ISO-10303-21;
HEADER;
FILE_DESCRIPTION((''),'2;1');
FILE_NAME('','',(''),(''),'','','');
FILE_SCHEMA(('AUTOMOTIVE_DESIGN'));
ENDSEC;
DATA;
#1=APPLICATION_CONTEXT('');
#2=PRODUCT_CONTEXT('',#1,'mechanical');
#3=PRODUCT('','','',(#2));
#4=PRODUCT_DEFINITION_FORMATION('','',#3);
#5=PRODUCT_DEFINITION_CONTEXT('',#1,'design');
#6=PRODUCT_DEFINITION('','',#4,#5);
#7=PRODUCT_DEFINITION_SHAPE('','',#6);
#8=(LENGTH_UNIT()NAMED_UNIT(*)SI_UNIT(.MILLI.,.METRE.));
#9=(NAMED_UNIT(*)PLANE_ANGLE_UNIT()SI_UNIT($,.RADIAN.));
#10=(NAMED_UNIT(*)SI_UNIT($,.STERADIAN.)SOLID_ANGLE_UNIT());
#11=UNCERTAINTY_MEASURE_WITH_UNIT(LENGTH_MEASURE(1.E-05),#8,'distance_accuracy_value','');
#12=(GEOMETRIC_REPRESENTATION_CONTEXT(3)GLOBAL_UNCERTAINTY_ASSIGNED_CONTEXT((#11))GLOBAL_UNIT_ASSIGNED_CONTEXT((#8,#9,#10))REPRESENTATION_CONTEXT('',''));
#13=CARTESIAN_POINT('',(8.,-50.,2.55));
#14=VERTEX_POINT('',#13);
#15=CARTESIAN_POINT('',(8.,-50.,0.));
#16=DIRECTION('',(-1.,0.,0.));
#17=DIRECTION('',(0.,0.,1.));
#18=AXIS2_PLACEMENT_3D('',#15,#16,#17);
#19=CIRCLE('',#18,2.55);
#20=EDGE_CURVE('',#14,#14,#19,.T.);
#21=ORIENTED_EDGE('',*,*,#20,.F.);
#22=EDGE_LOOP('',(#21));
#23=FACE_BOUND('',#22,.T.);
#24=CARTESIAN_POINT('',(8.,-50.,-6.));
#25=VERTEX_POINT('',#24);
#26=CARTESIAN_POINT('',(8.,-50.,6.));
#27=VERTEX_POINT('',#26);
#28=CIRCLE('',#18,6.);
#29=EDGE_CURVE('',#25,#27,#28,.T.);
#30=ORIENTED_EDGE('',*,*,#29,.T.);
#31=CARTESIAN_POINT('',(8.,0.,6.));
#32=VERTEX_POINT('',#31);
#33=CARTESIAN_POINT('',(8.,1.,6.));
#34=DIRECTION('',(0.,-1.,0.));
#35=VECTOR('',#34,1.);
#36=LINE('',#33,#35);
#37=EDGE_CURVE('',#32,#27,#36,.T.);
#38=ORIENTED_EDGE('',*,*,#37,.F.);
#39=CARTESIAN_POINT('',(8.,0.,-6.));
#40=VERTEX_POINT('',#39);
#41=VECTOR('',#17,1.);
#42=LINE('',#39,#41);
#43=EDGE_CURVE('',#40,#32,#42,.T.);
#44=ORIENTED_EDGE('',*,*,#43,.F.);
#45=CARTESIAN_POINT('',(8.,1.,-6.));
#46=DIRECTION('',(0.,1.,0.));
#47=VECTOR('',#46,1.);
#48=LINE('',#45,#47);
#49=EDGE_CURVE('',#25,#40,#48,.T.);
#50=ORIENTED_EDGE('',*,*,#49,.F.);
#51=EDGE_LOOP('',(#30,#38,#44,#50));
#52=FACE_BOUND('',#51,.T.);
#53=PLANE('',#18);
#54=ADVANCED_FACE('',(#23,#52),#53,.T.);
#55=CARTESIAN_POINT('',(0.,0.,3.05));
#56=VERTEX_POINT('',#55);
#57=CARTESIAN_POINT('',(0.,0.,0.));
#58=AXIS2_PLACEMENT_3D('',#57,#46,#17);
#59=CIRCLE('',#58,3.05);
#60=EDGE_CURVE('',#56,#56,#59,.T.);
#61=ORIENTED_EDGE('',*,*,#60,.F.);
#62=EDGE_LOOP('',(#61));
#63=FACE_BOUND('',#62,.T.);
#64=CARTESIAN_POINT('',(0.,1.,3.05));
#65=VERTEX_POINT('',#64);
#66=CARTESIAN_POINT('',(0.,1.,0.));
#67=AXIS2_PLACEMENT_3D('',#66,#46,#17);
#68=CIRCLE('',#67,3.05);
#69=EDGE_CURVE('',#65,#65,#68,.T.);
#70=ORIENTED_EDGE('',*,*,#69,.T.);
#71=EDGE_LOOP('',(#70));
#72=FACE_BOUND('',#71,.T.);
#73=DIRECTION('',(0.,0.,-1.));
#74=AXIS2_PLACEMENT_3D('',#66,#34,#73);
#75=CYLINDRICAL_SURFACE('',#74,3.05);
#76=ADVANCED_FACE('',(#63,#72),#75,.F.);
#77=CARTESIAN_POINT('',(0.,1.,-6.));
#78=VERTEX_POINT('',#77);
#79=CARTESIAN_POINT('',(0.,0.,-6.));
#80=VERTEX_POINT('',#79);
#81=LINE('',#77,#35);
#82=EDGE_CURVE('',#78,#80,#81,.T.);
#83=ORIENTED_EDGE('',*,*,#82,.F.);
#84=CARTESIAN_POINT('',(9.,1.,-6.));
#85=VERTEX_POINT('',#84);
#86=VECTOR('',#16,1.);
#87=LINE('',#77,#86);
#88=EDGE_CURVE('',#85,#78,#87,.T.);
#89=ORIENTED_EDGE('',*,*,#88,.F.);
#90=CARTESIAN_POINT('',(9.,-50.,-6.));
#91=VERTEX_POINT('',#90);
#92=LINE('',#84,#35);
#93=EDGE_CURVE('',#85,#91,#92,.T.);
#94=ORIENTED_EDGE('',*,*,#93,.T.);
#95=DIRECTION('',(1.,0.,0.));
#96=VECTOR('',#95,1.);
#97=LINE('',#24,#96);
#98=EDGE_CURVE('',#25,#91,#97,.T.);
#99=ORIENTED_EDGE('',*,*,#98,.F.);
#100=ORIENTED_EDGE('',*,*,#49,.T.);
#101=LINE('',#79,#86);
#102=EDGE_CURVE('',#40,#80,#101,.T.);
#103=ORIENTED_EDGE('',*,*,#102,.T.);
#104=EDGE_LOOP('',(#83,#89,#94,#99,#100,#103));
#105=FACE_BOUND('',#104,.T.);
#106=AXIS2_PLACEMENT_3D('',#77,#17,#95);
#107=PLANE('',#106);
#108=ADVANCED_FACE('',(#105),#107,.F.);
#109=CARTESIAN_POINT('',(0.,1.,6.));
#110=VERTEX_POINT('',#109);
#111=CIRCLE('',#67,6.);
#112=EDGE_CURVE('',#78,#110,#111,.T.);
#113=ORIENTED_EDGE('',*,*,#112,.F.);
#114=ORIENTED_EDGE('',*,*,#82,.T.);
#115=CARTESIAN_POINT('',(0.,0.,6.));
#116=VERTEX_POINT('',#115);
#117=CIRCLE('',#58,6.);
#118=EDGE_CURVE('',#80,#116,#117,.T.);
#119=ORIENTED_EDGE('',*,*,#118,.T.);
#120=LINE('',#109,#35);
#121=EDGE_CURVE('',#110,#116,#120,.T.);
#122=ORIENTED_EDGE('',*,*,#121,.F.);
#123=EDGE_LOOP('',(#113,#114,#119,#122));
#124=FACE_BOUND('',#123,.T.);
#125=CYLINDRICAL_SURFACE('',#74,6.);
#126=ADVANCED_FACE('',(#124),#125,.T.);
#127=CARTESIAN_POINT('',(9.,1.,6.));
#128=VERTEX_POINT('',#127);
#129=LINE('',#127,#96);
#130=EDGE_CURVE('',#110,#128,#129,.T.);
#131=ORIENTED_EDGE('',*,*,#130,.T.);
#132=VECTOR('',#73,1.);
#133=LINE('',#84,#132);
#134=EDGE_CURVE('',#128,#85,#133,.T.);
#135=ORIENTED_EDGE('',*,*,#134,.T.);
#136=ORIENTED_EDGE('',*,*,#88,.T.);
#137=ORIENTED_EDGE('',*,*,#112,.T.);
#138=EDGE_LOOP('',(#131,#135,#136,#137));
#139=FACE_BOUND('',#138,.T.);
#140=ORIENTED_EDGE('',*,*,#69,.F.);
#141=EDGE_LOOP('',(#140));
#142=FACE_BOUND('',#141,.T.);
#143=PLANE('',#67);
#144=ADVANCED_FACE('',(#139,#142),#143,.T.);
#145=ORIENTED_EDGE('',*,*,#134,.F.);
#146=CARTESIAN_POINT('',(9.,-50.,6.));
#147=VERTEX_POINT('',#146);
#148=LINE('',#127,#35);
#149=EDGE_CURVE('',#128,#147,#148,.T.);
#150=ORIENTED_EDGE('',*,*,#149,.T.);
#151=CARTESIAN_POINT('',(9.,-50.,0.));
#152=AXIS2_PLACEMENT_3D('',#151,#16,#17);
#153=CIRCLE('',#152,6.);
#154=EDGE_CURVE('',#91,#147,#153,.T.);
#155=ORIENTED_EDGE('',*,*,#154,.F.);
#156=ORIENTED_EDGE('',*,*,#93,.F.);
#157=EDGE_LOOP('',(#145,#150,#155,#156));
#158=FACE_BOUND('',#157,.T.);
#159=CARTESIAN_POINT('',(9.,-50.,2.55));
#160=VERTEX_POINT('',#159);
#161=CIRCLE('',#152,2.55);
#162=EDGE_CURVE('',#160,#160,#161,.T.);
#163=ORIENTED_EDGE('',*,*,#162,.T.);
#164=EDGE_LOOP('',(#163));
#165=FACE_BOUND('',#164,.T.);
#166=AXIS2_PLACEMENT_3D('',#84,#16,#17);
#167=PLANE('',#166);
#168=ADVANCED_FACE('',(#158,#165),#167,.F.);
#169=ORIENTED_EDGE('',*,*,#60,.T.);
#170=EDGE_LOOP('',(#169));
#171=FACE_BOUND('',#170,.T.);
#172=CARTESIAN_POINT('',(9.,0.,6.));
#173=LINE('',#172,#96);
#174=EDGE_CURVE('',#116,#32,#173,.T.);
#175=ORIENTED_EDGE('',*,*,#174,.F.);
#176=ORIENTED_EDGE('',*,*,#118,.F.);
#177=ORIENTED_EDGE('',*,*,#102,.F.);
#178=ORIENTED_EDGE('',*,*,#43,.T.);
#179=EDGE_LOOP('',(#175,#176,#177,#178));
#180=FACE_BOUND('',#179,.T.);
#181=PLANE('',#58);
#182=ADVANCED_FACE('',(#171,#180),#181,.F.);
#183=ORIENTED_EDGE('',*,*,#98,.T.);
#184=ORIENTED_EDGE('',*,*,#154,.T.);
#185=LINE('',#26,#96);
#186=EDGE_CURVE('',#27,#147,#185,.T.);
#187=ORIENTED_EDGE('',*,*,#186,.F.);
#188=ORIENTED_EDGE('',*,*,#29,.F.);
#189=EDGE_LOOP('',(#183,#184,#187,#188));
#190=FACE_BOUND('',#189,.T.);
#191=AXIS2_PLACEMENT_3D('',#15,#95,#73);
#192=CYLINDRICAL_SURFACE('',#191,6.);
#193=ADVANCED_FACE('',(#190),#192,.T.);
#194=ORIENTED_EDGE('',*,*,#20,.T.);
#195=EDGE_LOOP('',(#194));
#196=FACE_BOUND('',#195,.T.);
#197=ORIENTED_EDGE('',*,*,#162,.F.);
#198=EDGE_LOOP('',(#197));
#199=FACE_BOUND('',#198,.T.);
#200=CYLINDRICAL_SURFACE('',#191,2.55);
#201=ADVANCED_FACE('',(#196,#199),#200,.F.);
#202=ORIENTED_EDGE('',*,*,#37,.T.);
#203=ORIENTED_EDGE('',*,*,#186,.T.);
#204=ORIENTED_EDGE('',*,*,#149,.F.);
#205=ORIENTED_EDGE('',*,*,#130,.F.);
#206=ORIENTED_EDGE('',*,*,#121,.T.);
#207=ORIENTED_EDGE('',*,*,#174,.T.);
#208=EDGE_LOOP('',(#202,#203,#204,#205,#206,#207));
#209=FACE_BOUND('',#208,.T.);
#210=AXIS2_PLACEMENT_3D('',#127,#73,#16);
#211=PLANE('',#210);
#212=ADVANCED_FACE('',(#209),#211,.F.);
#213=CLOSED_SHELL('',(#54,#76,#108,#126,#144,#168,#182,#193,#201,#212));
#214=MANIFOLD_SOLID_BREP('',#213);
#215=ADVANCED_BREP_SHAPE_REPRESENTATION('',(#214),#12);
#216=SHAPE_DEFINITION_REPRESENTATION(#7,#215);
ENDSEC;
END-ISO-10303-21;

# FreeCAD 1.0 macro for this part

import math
import FreeCAD as App
import Part
import Sketcher
Q = App.Units.Quantity

doc = App.newDocument("Part")
body = doc.addObject("PartDesign::Body", "Body")

# Sketch on XZ plane
sketch1 = doc.addObject("Sketcher::SketchObject", "Sketch")
body.addObject(sketch1)
sketch1.AttachmentSupport = (doc.XZ_Plane, [""])
sketch1.MapMode = "FlatFace"
sketch1.addGeometry(Part.LineSegment(App.Vector(9, -6, 0), App.Vector(0, -6, 0)), False)
sketch1.addGeometry(Part.ArcOfCircle(Part.Circle(App.Vector(0, 0, 0), App.Vector(0, 0, 1), 6), math.radians(90), math.radians(270)), False)
sketch1.addGeometry(Part.LineSegment(App.Vector(0, 6, 0), App.Vector(9, 6, 0)), False)
sketch1.addGeometry(Part.LineSegment(App.Vector(9, 6, 0), App.Vector(9, -6, 0)), False)
sketch1.addGeometry(Part.Circle(App.Vector(0, 0, 0), App.Vector(0, 0, 1), 3.05), False)
sketch1.addConstraint(Sketcher.Constraint("Tangent", 0, 2, 1, 2))
sketch1.addConstraint(Sketcher.Constraint("Tangent", 1, 1, 2, 1))
sketch1.addConstraint(Sketcher.Constraint("Coincident", 2, 2, 3, 1))
sketch1.addConstraint(Sketcher.Constraint("Coincident", 3, 2, 0, 1))
sketch1.addConstraint(Sketcher.Constraint("Horizontal", 0))
sketch1.addConstraint(Sketcher.Constraint("Horizontal", 2))
sketch1.addConstraint(Sketcher.Constraint("Vertical", 3))
sketch1.addConstraint(Sketcher.Constraint("Coincident", 1, 3, -1, 1))
sketch1.addConstraint(Sketcher.Constraint("Coincident", 4, 3, -1, 1))
sketch1.addConstraint(Sketcher.Constraint("Radius", 1, Q("6 mm")))
sketch1.addConstraint(Sketcher.Constraint("Diameter", 4, Q("6.1 mm")))
sketch1.addConstraint(Sketcher.Constraint("DistanceX", 0, 2, 0, 1, Q("9 mm")))
pad1 = doc.addObject("PartDesign::Pad", "Pad")
body.addObject(pad1)
pad1.Profile = sketch1
pad1.Length = 1
pad1.Reversed = True

# Sketch on YZ plane
sketch2 = doc.addObject("Sketcher::SketchObject", "Sketch001")
body.addObject(sketch2)
sketch2.AttachmentSupport = (doc.YZ_Plane, [""])
sketch2.MapMode = "FlatFace"
sketch2.AttachmentOffset = App.Placement(App.Vector(0, 0, 9), App.Rotation())
sketch2.addGeometry(Part.LineSegment(App.Vector(0, -6, 0), App.Vector(0, 6, 0)), False)
sketch2.addGeometry(Part.LineSegment(App.Vector(0, 6, 0), App.Vector(-50, 6, 0)), False)
sketch2.addGeometry(Part.ArcOfCircle(Part.Circle(App.Vector(-50, 0, 0), App.Vector(0, 0, 1), 6), math.radians(90), math.radians(270)), False)
sketch2.addGeometry(Part.LineSegment(App.Vector(-50, -6, 0), App.Vector(0, -6, 0)), False)
sketch2.addGeometry(Part.Circle(App.Vector(-50, 0, 0), App.Vector(0, 0, 1), 2.55), False)
sketch2.addConstraint(Sketcher.Constraint("Coincident", 0, 2, 1, 1))
sketch2.addConstraint(Sketcher.Constraint("Tangent", 1, 2, 2, 1))
sketch2.addConstraint(Sketcher.Constraint("Tangent", 2, 2, 3, 1))
sketch2.addConstraint(Sketcher.Constraint("Coincident", 3, 2, 0, 1))
sketch2.addConstraint(Sketcher.Constraint("Vertical", 0))
sketch2.addConstraint(Sketcher.Constraint("Horizontal", 1))
sketch2.addConstraint(Sketcher.Constraint("Horizontal", 3))
sketch2.addConstraint(Sketcher.Constraint("Coincident", 4, 3, 2, 3))
sketch2.addConstraint(Sketcher.Constraint("Symmetric", 0, 2, 3, 2, -1, 1))
sketch2.addConstraint(Sketcher.Constraint("Radius", 2, Q("6 mm")))
sketch2.addConstraint(Sketcher.Constraint("Diameter", 4, Q("5.1 mm")))
sketch2.addConstraint(Sketcher.Constraint("DistanceX", 1, 2, 1, 1, Q("50 mm")))
pad2 = doc.addObject("PartDesign::Pad", "Pad001")
body.addObject(pad2)
pad2.Profile = sketch2
pad2.Length = 1
pad2.Reversed = True

doc.recompute()
